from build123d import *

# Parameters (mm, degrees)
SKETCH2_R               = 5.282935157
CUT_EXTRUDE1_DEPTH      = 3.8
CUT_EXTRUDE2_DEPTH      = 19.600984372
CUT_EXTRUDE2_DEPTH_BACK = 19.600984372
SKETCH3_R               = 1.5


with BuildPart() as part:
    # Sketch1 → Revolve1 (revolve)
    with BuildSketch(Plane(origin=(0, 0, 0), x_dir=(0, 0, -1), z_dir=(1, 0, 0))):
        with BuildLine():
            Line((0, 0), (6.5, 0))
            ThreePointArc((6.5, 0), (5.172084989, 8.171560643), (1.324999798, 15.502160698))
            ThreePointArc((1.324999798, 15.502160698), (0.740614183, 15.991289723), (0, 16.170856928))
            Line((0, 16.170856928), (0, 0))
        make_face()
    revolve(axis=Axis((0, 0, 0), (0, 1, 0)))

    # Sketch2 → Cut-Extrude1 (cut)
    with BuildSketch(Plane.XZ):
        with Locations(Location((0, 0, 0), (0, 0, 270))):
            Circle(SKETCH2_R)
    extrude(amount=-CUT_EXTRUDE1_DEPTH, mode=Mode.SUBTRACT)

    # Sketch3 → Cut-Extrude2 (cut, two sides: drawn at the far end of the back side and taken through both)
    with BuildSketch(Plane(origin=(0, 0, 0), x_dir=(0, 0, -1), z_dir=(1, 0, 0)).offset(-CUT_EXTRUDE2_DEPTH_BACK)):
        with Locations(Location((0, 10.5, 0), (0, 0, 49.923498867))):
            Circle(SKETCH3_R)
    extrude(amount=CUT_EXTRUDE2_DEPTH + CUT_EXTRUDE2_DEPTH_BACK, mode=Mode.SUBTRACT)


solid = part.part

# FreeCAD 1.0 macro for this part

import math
import FreeCAD as App
import Part
import Sketcher
from FreeCAD import Vector
Q = App.Units.Quantity

doc = App.newDocument("Part")
body = doc.addObject("PartDesign::Body", "Body")

sketch1 = body.newObject("Sketcher::SketchObject", "Sketch")
sketch1.AttachmentSupport = (doc.getObject("YZ_Plane"), [""])
sketch1.MapMode = "FlatFace"
sketch1.addGeometry(Part.LineSegment(Vector(0, 0, 0), Vector(0, -6.5, 0)), False)
sketch1.addGeometry(Part.ArcOfCircle(Part.Circle(Vector(0, 19.306532, 0), Vector(0, 0, 1), 25.806532), math.radians(-90), math.radians(-53.07946)), False)
sketch1.addGeometry(Part.ArcOfCircle(Part.Circle(Vector(14.496069, 0.013989, 0), Vector(0, 0, 1), 1.674846), math.radians(-53.07946), math.radians(-0.478548)), False)
sketch1.addGeometry(Part.LineSegment(Vector(16.170857, 0, 0), Vector(0, 0, 0)), False)
sketch1.addConstraint(Sketcher.Constraint("Coincident", 0, 2, 1, 1))
sketch1.addConstraint(Sketcher.Constraint("Tangent", 1, 2, 2, 1))
sketch1.addConstraint(Sketcher.Constraint("Coincident", 2, 2, 3, 1))
sketch1.addConstraint(Sketcher.Constraint("Coincident", 3, 2, 0, 1))
sketch1.addConstraint(Sketcher.Constraint("Vertical", 0))
sketch1.addConstraint(Sketcher.Constraint("Horizontal", 3))
sketch1.addConstraint(Sketcher.Constraint("Coincident", 3, 2, -1, 1))
sketch1.addConstraint(Sketcher.Constraint("PointOnObject", 1, 3, -2))
sketch1.addConstraint(Sketcher.Constraint("DistanceY", 0, 2, 0, 1, Q("6.5 mm")))
sketch1.addConstraint(Sketcher.Constraint("Radius", 1, Q("25.806532 mm")))
sketch1.addConstraint(Sketcher.Constraint("DistanceY", 1, 2, -1, 1, Q("1.325 mm")))
sketch1.addConstraint(Sketcher.Constraint("Radius", 2, Q("1.674846 mm")))
revolution = body.newObject("PartDesign::Revolution", "Revolution")
revolution.Profile = sketch1
revolution.ReferenceAxis = (sketch1, ["H_Axis"])
revolution.Angle = 360

sketch2 = body.newObject("Sketcher::SketchObject", "Sketch001")
sketch2.AttachmentSupport = (doc.getObject("XZ_Plane"), [""])
sketch2.MapMode = "FlatFace"
sketch2.addGeometry(Part.Circle(Vector(0, 0, 0), Vector(0, 0, 1), 5.282935), False)
sketch2.addConstraint(Sketcher.Constraint("Coincident", 0, 3, -1, 1))
sketch2.addConstraint(Sketcher.Constraint("Diameter", 0, Q("10.56587 mm")))
pocket1 = body.newObject("PartDesign::Pocket", "Pocket")
pocket1.Profile = sketch2
pocket1.Length = 3.8

sketch3 = body.newObject("Sketcher::SketchObject", "Sketch002")
sketch3.AttachmentSupport = (doc.getObject("YZ_Plane"), [""])
sketch3.MapMode = "FlatFace"
sketch3.addGeometry(Part.Circle(Vector(10.5, 0, 0), Vector(0, 0, 1), 1.5), False)
sketch3.addConstraint(Sketcher.Constraint("PointOnObject", 0, 3, -1))
sketch3.addConstraint(Sketcher.Constraint("Diameter", 0, Q("3 mm")))
sketch3.addConstraint(Sketcher.Constraint("DistanceX", -1, 1, 0, 3, Q("10.5 mm")))
pocket2 = body.newObject("PartDesign::Pocket", "Pocket001")
pocket2.Profile = sketch3
pocket2.Type = "ThroughAll"
pocket2.Midplane = True

doc.recompute()
